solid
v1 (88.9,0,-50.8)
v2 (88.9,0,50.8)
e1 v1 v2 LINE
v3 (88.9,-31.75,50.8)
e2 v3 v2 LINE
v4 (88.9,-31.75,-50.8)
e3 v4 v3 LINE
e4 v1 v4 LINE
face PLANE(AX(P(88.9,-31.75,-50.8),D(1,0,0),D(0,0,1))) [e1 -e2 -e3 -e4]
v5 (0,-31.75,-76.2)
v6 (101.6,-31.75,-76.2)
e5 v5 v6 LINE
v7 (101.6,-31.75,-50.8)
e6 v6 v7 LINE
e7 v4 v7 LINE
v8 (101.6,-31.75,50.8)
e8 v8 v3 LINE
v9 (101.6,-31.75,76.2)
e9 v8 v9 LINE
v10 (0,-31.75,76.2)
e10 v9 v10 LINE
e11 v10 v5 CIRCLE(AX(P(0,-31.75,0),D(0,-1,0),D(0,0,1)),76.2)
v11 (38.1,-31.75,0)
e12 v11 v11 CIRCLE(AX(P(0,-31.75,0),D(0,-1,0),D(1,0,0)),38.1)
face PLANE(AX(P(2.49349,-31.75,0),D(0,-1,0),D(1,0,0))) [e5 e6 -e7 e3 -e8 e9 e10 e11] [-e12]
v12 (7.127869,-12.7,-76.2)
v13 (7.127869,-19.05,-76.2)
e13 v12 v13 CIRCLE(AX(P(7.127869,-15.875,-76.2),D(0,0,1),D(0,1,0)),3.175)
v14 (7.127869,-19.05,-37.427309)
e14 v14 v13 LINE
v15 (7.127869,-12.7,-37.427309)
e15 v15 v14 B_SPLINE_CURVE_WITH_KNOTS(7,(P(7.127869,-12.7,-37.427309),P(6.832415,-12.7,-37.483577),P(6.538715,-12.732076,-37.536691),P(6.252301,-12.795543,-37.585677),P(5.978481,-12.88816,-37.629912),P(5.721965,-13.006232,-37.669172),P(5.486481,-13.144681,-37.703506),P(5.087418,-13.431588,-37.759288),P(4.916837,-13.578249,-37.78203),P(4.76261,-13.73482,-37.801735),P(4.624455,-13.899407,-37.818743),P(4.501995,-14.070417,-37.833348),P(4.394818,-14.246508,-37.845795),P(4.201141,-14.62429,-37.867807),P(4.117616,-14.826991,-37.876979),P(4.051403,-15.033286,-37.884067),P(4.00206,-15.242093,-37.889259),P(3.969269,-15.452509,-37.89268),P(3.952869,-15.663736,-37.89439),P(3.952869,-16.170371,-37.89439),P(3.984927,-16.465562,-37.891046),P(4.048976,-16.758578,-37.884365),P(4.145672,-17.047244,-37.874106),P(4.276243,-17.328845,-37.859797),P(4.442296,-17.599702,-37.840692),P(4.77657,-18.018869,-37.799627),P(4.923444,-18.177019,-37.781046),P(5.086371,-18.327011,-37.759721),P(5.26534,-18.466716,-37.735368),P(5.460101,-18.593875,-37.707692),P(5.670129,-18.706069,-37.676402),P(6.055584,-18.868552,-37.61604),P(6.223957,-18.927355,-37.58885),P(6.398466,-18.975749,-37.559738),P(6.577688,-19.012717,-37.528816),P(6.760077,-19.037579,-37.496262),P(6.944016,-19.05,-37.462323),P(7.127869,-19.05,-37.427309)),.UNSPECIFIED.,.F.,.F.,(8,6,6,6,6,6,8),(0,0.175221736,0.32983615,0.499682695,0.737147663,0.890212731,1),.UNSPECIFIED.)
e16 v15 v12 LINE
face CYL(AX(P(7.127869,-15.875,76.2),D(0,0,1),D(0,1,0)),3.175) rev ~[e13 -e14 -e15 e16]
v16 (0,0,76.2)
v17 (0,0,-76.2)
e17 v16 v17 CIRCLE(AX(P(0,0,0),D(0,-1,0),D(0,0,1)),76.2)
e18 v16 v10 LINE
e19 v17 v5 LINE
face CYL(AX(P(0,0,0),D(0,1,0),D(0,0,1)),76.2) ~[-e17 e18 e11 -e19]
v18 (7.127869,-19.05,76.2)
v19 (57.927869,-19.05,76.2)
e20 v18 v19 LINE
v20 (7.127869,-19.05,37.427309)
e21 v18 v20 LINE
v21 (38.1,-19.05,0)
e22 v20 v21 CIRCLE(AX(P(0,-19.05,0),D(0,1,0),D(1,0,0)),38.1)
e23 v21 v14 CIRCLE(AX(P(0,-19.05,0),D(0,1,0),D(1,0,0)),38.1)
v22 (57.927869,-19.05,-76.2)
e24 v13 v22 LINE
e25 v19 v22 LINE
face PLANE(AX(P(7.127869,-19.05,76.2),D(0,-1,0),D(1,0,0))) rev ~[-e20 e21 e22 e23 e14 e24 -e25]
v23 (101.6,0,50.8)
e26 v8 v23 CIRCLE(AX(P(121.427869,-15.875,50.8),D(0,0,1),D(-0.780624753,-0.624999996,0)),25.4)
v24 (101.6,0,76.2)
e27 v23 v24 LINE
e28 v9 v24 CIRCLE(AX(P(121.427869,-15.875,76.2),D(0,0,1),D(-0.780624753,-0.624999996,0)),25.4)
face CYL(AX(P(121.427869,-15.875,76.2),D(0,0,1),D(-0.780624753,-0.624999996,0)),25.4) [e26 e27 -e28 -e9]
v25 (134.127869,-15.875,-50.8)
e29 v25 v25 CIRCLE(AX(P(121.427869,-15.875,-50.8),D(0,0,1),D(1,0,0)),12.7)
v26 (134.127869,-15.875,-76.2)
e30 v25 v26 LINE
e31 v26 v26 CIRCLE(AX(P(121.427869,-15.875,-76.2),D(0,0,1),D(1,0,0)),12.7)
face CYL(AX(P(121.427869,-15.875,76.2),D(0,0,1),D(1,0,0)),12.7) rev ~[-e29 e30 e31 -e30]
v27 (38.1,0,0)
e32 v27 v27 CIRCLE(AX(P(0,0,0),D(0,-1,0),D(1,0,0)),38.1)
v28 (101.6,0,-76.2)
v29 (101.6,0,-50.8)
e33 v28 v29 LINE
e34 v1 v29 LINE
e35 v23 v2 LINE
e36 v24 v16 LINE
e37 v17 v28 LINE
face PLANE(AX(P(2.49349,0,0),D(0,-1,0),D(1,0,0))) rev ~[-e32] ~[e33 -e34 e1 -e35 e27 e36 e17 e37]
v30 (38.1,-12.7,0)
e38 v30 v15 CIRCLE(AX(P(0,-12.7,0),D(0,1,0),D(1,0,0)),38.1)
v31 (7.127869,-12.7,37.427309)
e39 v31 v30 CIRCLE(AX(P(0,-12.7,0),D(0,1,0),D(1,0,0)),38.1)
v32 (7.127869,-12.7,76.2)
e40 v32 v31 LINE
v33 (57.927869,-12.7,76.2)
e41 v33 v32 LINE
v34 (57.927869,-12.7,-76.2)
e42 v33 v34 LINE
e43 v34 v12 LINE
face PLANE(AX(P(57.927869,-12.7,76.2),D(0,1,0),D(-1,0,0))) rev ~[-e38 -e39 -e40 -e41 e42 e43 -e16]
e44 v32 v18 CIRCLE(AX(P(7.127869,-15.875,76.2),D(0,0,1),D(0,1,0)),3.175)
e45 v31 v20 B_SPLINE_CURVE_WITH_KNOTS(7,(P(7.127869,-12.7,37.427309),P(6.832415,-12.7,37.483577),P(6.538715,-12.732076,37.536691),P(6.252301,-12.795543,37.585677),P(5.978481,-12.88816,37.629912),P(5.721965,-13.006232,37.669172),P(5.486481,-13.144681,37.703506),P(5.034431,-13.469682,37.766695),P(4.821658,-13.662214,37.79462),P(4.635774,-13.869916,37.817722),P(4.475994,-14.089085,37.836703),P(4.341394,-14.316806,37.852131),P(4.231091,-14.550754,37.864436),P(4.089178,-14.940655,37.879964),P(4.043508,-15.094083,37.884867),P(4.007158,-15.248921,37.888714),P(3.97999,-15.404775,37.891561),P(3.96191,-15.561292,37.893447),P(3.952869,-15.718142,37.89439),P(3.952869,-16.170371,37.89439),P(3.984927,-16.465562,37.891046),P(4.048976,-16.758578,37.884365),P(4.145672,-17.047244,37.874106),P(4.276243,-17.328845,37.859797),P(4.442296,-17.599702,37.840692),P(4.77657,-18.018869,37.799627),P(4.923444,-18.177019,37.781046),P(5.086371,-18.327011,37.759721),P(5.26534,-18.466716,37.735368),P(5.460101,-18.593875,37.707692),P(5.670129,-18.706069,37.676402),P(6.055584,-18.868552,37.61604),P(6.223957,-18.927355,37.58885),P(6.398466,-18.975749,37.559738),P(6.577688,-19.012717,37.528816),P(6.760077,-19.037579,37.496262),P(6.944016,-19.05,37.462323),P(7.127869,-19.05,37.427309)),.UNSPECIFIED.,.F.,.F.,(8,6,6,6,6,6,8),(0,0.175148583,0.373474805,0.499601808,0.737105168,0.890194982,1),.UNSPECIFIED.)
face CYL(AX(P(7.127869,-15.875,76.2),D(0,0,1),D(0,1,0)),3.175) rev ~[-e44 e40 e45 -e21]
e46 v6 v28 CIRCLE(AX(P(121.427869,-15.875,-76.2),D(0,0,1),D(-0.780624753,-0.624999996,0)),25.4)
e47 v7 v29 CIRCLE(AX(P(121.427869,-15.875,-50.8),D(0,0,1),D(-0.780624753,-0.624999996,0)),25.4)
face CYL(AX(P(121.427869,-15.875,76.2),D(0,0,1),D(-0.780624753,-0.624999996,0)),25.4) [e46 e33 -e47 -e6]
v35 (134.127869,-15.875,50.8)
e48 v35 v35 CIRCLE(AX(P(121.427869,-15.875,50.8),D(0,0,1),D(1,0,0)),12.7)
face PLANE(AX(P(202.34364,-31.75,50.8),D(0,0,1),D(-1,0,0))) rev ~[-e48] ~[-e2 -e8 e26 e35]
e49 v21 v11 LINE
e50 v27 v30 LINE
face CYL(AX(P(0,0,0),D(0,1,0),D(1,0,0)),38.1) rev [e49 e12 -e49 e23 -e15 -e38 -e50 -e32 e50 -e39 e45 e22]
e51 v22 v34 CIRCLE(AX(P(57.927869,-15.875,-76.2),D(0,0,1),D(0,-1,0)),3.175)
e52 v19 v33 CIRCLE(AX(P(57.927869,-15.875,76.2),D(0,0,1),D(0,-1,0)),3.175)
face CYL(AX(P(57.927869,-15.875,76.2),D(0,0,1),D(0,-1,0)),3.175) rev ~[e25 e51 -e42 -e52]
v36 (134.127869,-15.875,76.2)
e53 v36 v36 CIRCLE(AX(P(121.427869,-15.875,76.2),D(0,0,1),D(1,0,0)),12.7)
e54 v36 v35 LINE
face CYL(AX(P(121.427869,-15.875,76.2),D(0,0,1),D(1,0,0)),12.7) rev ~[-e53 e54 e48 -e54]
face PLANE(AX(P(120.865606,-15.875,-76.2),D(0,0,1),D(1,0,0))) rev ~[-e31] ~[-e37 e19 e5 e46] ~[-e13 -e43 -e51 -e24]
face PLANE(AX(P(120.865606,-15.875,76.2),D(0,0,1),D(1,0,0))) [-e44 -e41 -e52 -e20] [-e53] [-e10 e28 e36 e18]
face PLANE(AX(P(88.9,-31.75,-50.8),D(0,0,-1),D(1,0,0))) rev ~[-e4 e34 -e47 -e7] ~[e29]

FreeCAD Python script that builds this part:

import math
import FreeCAD as App
import Part
import Sketcher
from FreeCAD import Vector
Q = App.Units.Quantity


def add_polygon(sketch, points):
    """Adds a closed chain of lines whose ends are joined by coincident constraints."""
    first, n = sketch.GeometryCount, len(points)
    for a, b in zip(points, points[1:] + points[:1]):
        sketch.addGeometry(Part.LineSegment(App.Vector(*a, 0), App.Vector(*b, 0)), False)
    for i in range(n):
        sketch.addConstraint(Sketcher.Constraint("Coincident", first + i, 2, first + (i + 1) % n, 1))

doc = App.newDocument("Part")
body = doc.addObject("PartDesign::Body", "Body")

# Sketch on XZ plane
sketch1 = doc.addObject("Sketcher::SketchObject", "Sketch")
body.addObject(sketch1)
sketch1.AttachmentSupport = (doc.XZ_Plane, [""])
sketch1.MapMode = "FlatFace"
sketch1.addGeometry(Part.ArcOfCircle(Part.Circle(Vector(0, 0, 0), Vector(0, 0, 1), 76), math.radians(90), math.radians(270)), False)
sketch1.addGeometry(Part.LineSegment(Vector(0, -76, 0), Vector(102, -76, 0)), False)
sketch1.addGeometry(Part.LineSegment(Vector(102, -76, 0), Vector(102, 76, 0)), False)
sketch1.addGeometry(Part.LineSegment(Vector(102, 76, 0), Vector(0, 76, 0)), False)
sketch1.addGeometry(Part.Circle(Vector(0, 0, 0), Vector(0, 0, 1), 38), False)
sketch1.addConstraint(Sketcher.Constraint("Tangent", 0, 2, 1, 1))
sketch1.addConstraint(Sketcher.Constraint("Coincident", 1, 2, 2, 1))
sketch1.addConstraint(Sketcher.Constraint("Coincident", 2, 2, 3, 1))
sketch1.addConstraint(Sketcher.Constraint("Tangent", 3, 2, 0, 1))
sketch1.addConstraint(Sketcher.Constraint("Horizontal", 1))
sketch1.addConstraint(Sketcher.Constraint("Vertical", 2))
sketch1.addConstraint(Sketcher.Constraint("Horizontal", 3))
sketch1.addConstraint(Sketcher.Constraint("Coincident", 0, 3, -1, 1))
sketch1.addConstraint(Sketcher.Constraint("Coincident", 4, 3, -1, 1))
sketch1.addConstraint(Sketcher.Constraint("Diameter", 4, Q("3 in")))
sketch1.addConstraint(Sketcher.Constraint("Radius", 0, Q("3 in")))
sketch1.addConstraint(Sketcher.Constraint("DistanceX", 1, 1, 1, 2, Q("4 in")))
pad1 = doc.addObject("PartDesign::Pad", "Pad")
body.addObject(pad1)
pad1.Profile = sketch1
pad1.Length = Q("1.25 in")

# Sketch on XY plane
sketch2 = doc.addObject("Sketcher::SketchObject", "Sketch001")
body.addObject(sketch2)
sketch2.AttachmentSupport = (doc.XY_Plane, [""])
sketch2.MapMode = "FlatFace"
sketch2.AttachmentOffset = App.Placement(Vector(0, 0, 3 * 25.4), App.Rotation())
sketch2.addGeometry(Part.LineSegment(Vector(102, 0, 0), Vector(102, -32, 0)), False)
sketch2.addGeometry(Part.ArcOfCircle(Part.Circle(Vector(121, -16, 0), Vector(0, 0, 1), 25), math.radians(-141), math.radians(141)), False)
sketch2.addGeometry(Part.Circle(Vector(121, -16, 0), Vector(0, 0, 1), 13), False)
sketch2.addConstraint(Sketcher.Constraint("Coincident", 0, 1, 1, 2))
sketch2.addConstraint(Sketcher.Constraint("Coincident", 1, 1, 0, 2))
sketch2.addConstraint(Sketcher.Constraint("Vertical", 0))
sketch2.addConstraint(Sketcher.Constraint("Coincident", 2, 3, 1, 3))
sketch2.addConstraint(Sketcher.Constraint("PointOnObject", 0, 1, -1))
sketch2.addConstraint(Sketcher.Constraint("Diameter", 2, Q("1 in")))
sketch2.addConstraint(Sketcher.Constraint("Radius", 1, Q("1 in")))
sketch2.addConstraint(Sketcher.Constraint("DistanceX", -1, 1, 0, 1, Q("4 in")))
sketch2.addConstraint(Sketcher.Constraint("DistanceY", 0, 2, 0, 1, Q("1.25 in")))
pad2 = doc.addObject("PartDesign::Pad", "Pad001")
body.addObject(pad2)
pad2.Profile = sketch2
pad2.Length = Q("6 in")
pad2.Reversed = True

# Sketch on XZ plane
sketch3 = doc.addObject("Sketcher::SketchObject", "Sketch002")
body.addObject(sketch3)
sketch3.AttachmentSupport = (doc.XZ_Plane, [""])
sketch3.MapMode = "FlatFace"
sketch3.AttachmentOffset = App.Placement(Vector(0, 0, 1.25 * 25.4), App.Rotation())
add_polygon(sketch3, [(89, 51), (89, -51), (202, -51), (202, 51)])  # lines 0-3
sketch3.addConstraint(Sketcher.Constraint("Vertical", 0))
sketch3.addConstraint(Sketcher.Constraint("Horizontal", 1))
sketch3.addConstraint(Sketcher.Constraint("Vertical", 2))
sketch3.addConstraint(Sketcher.Constraint("Horizontal", 3))
sketch3.addConstraint(Sketcher.Constraint("DistanceY", 0, 2, 0, 1, Q("4 in")))
sketch3.addConstraint(Sketcher.Constraint("DistanceY", 0, 2, -1, 1, Q("2 in")))
sketch3.addConstraint(Sketcher.Constraint("DistanceX", -1, 1, 0, 2, Q("3.5 in")))
sketch3.addConstraint(Sketcher.Constraint("DistanceX", 1, 1, 1, 2, 113.44364))
pocket1 = doc.addObject("PartDesign::Pocket", "Pocket")
body.addObject(pocket1)
pocket1.Profile = sketch3
pocket1.Length = Q("5 in")
pocket1.Midplane = True

# Sketch on XY plane
sketch4 = doc.addObject("Sketcher::SketchObject", "Sketch003")
body.addObject(sketch4)
sketch4.AttachmentSupport = (doc.XY_Plane, [""])
sketch4.MapMode = "FlatFace"
sketch4.AttachmentOffset = App.Placement(Vector(0, 0, 3 * 25.4), App.Rotation())
sketch4.addGeometry(Part.LineSegment(Vector(7.1, -19.1, 0), Vector(57.9, -19.1, 0)), False)
sketch4.addGeometry(Part.ArcOfCircle(Part.Circle(Vector(57.9, -15.9, 0), Vector(0, 0, 1), 3.2), math.radians(-90), math.radians(90)), False)
sketch4.addGeometry(Part.LineSegment(Vector(57.9, -12.7, 0), Vector(7.1, -12.7, 0)), False)
sketch4.addGeometry(Part.ArcOfCircle(Part.Circle(Vector(7.1, -15.9, 0), Vector(0, 0, 1), 3.2), math.radians(90), math.radians(270)), False)
sketch4.addConstraint(Sketcher.Constraint("Tangent", 0, 2, 1, 1))
sketch4.addConstraint(Sketcher.Constraint("Tangent", 1, 2, 2, 1))
sketch4.addConstraint(Sketcher.Constraint("Tangent", 2, 2, 3, 1))
sketch4.addConstraint(Sketcher.Constraint("Tangent", 3, 2, 0, 1))
sketch4.addConstraint(Sketcher.Constraint("Horizontal", 0))
sketch4.addConstraint(Sketcher.Constraint("Horizontal", 2))
sketch4.addConstraint(Sketcher.Constraint("DistanceX", 0, 1, 0, 2, Q("2 in")))
sketch4.addConstraint(Sketcher.Constraint("Radius", 1, Q("0.125 in")))
sketch4.addConstraint(Sketcher.Constraint("DistanceY", 1, 2, -1, 1, Q("0.5 in")))
sketch4.addConstraint(Sketcher.Constraint("DistanceX", -1, 1, 1, 3, 57.927869))
pocket2 = doc.addObject("PartDesign::Pocket", "Pocket001")
body.addObject(pocket2)
pocket2.Profile = sketch4
pocket2.Type = "ThroughAll"

doc.recompute()
